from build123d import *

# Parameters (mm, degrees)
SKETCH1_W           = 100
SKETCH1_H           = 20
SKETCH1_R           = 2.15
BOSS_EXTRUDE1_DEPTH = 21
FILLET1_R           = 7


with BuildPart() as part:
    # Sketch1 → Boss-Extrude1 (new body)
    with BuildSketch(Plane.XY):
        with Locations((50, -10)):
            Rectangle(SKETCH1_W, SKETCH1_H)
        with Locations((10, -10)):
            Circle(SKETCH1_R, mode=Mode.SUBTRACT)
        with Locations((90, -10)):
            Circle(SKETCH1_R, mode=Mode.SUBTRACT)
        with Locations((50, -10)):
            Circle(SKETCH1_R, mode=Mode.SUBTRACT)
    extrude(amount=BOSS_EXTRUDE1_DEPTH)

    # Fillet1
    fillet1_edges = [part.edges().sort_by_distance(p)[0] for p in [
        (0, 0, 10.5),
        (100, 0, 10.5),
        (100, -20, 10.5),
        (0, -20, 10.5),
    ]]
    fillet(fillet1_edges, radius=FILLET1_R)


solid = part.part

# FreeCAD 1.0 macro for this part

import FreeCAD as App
import Part
import Sketcher
from FreeCAD import Vector


def edges_at(feature, points):
    """Names of the edges that pass closest to the given points."""
    edges = feature.Shape.Edges
    near = lambda p: min(range(len(edges)), key=lambda i: edges[i].distToShape(Part.Vertex(*p))[0])
    return sorted({f"Edge{near(p) + 1}" for p in points})


def add_polygon(sketch, points):
    """Adds a closed chain of lines whose ends are joined by coincident constraints."""
    first, n = sketch.GeometryCount, len(points)
    for a, b in zip(points, points[1:] + points[:1]):
        sketch.addGeometry(Part.LineSegment(App.Vector(*a, 0), App.Vector(*b, 0)), False)
    for i in range(n):
        sketch.addConstraint(Sketcher.Constraint("Coincident", first + i, 2, first + (i + 1) % n, 1))

doc = App.newDocument("Part")
body = doc.addObject("PartDesign::Body", "Body")

# Sketch on XY plane
sketch1 = body.newObject("Sketcher::SketchObject", "Sketch")
sketch1.AttachmentSupport = (doc.getObject("XY_Plane"), [""])
sketch1.MapMode = "FlatFace"
add_polygon(sketch1, [(0, 0), (0, -20), (100, -20), (100, 0)])  # lines 0-3
sketch1.addGeometry(Part.Circle(Vector(10, -10, 0), Vector(0, 0, 1), 2.1), False)  # 4
sketch1.addGeometry(Part.Circle(Vector(50, -10, 0), Vector(0, 0, 1), 2.1), False)  # 5
sketch1.addGeometry(Part.Circle(Vector(90, -10, 0), Vector(0, 0, 1), 2.1), False)  # 6
sketch1.addConstraint([
    Sketcher.Constraint("Vertical", 0),
    Sketcher.Constraint("Horizontal", 1),
    Sketcher.Constraint("Vertical", 2),
    Sketcher.Constraint("Horizontal", 3),
    Sketcher.Constraint("Coincident", 3, 2, -1, 1),
    Sketcher.Constraint("Equal", 4, 5),
    Sketcher.Constraint("Equal", 5, 6),
    Sketcher.Constraint("Horizontal", 4, 3, 5, 3),
    Sketcher.Constraint("Horizontal", 5, 3, 6, 3),
    Sketcher.Constraint("Diameter", 4, 4.3),
    Sketcher.Constraint("DistanceX", 1, 1, 1, 2, 100.0),
    Sketcher.Constraint("DistanceY", 0, 2, 0, 1, 20.0),
    Sketcher.Constraint("DistanceX", -1, 1, 4, 3, 10.0),
    Sketcher.Constraint("DistanceY", 4, 3, -1, 1, 10.0),
    Sketcher.Constraint("DistanceX", -1, 1, 5, 3, 50.0),
    Sketcher.Constraint("DistanceX", -1, 1, 6, 3, 90.0),
])
pad1 = body.newObject("PartDesign::Pad", "Pad")
pad1.Profile = sketch1
pad1.Length = 21
doc.recompute()

fillet = body.newObject("PartDesign::Fillet", "Fillet")
fillet.Base = (pad1, edges_at(pad1, [
    (0, 0, 10.5),
    (100, 0, 10.5),
    (100, -20, 10.5),
    (0, -20, 10.5),
]))
fillet.Radius = 7

doc.recompute()
